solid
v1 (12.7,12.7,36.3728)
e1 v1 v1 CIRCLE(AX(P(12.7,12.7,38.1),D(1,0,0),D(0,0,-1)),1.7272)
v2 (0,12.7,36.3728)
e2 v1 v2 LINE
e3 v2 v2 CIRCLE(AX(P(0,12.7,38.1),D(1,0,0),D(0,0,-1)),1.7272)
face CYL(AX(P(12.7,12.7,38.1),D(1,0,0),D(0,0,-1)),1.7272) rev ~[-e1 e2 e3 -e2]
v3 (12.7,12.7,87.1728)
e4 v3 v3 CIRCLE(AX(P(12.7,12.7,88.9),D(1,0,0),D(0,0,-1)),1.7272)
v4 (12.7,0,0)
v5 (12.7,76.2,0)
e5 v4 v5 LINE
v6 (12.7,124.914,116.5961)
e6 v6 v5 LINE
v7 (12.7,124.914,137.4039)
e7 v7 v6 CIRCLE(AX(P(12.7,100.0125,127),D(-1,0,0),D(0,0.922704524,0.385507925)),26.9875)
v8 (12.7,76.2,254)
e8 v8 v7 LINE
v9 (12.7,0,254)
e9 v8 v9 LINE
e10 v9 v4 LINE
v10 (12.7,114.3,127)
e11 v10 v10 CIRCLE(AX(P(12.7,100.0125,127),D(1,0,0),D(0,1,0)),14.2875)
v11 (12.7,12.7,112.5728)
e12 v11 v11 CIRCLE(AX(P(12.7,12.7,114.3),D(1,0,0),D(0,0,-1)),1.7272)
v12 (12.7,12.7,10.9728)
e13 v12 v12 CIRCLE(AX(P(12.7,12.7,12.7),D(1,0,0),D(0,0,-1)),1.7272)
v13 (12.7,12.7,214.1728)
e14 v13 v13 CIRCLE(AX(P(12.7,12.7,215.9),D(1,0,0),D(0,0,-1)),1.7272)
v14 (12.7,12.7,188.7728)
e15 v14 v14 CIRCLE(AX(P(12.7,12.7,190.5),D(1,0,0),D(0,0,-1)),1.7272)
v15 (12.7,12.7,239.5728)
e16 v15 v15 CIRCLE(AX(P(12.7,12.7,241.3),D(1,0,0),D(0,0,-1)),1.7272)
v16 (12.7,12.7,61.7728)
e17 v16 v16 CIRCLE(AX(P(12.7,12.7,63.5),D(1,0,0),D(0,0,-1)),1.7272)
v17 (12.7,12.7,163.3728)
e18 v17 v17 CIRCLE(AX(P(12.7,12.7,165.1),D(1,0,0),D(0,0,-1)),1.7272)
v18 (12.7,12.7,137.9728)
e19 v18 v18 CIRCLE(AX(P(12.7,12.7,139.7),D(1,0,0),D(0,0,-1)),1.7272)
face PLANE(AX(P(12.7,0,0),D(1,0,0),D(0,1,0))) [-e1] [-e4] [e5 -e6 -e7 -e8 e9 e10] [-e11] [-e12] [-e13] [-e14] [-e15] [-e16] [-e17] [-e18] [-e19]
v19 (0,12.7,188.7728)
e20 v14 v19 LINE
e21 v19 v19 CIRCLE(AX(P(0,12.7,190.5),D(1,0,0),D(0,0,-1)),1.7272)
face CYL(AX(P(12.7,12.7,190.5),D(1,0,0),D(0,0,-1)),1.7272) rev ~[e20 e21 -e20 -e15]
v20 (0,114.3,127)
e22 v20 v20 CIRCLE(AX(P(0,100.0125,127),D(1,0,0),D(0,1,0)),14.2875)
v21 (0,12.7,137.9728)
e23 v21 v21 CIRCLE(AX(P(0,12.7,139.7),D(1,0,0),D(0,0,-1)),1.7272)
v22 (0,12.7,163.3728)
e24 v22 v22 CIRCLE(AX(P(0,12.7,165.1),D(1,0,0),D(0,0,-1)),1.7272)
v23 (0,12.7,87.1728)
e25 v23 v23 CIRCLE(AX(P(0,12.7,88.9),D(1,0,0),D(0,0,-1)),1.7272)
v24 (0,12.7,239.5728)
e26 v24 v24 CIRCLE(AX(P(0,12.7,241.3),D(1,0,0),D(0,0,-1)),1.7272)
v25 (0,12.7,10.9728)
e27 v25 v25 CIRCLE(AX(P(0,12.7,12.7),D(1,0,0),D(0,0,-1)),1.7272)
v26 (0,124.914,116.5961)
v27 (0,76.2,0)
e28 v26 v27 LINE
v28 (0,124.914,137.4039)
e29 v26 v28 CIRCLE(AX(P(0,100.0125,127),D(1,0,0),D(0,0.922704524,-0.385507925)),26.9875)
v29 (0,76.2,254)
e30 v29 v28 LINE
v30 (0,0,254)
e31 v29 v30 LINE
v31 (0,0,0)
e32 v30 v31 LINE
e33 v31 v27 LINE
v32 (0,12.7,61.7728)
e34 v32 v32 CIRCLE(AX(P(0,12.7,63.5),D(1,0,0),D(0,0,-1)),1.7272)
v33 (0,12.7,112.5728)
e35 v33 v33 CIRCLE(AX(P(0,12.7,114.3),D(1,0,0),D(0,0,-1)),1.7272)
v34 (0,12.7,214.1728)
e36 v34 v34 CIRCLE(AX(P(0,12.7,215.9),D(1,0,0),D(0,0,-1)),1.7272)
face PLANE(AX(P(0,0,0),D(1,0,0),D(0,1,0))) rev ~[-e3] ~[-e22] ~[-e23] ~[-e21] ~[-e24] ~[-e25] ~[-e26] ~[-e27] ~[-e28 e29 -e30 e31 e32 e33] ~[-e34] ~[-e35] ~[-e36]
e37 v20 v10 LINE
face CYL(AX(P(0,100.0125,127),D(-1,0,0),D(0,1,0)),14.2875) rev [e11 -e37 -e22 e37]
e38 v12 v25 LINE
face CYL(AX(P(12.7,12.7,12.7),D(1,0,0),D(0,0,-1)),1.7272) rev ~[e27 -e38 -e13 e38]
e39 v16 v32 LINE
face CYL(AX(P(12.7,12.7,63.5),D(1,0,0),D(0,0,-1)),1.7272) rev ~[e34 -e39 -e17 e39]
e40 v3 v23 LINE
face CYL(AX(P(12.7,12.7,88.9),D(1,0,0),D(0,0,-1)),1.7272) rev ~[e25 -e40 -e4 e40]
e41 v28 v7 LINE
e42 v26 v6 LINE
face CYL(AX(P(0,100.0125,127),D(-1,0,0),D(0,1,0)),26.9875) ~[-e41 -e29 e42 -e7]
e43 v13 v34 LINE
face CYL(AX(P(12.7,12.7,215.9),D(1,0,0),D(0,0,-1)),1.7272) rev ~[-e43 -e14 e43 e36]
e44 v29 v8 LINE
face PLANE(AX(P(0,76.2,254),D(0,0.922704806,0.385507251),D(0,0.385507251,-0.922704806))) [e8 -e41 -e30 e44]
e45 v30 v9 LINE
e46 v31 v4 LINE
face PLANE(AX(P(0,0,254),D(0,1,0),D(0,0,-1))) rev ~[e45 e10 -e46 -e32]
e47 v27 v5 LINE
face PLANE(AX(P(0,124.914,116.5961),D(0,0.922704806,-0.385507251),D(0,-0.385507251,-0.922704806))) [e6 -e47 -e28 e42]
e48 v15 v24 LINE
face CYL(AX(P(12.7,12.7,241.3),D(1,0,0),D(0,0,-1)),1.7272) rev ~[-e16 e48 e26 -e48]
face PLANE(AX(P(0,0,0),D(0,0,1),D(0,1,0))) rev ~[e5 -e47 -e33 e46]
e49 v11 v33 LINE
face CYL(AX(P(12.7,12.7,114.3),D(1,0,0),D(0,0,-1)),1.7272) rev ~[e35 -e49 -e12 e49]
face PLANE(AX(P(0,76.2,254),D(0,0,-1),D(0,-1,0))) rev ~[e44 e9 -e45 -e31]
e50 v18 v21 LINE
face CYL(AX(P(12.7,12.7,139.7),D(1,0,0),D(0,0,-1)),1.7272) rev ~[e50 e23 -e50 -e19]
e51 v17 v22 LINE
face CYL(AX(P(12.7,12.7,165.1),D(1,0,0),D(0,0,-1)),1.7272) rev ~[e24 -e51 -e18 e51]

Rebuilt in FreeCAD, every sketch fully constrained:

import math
import FreeCAD as App
import Part
import Sketcher
from FreeCAD import Vector
Q = App.Units.Quantity

doc = App.newDocument("Part")
body = doc.addObject("PartDesign::Body", "Body")

# Sketch on YZ plane
sketch1 = body.newObject("Sketcher::SketchObject", "Sketch")
sketch1.AttachmentSupport = (doc.getObject("YZ_Plane"), [""])
sketch1.MapMode = "FlatFace"
sketch1.addGeometry(Part.LineSegment(Vector(124.914, 137.4039, 0), Vector(76.2, 254, 0)), False)
sketch1.addGeometry(Part.LineSegment(Vector(76.2, 254, 0), Vector(0, 254, 0)), False)
sketch1.addGeometry(Part.LineSegment(Vector(0, 254, 0), Vector(0, 0, 0)), False)
sketch1.addGeometry(Part.LineSegment(Vector(0, 0, 0), Vector(76.2, 0, 0)), False)
sketch1.addGeometry(Part.LineSegment(Vector(76.2, 0, 0), Vector(124.914, 116.5961, 0)), False)
sketch1.addGeometry(Part.ArcOfCircle(Part.Circle(Vector(100.0125, 127, 0), Vector(0, 0, 1), 26.9875), math.radians(-22.675277), math.radians(22.675277)), False)
sketch1.addGeometry(Part.Circle(Vector(100.0125, 127, 0), Vector(0, 0, 1), 14.2875), False)
sketch1.addConstraint(Sketcher.Constraint("Coincident", 0, 2, 1, 1))
sketch1.addConstraint(Sketcher.Constraint("Coincident", 1, 2, 2, 1))
sketch1.addConstraint(Sketcher.Constraint("Coincident", 2, 2, 3, 1))
sketch1.addConstraint(Sketcher.Constraint("Coincident", 3, 2, 4, 1))
sketch1.addConstraint(Sketcher.Constraint("Tangent", 4, 2, 5, 1))
sketch1.addConstraint(Sketcher.Constraint("Tangent", 5, 2, 0, 1))
sketch1.addConstraint(Sketcher.Constraint("Horizontal", 1))
sketch1.addConstraint(Sketcher.Constraint("Vertical", 2))
sketch1.addConstraint(Sketcher.Constraint("Horizontal", 3))
sketch1.addConstraint(Sketcher.Constraint("Coincident", 2, 2, -1, 1))
sketch1.addConstraint(Sketcher.Constraint("Coincident", 6, 3, 5, 3))
sketch1.addConstraint(Sketcher.Constraint("Vertical", 0, 2, 3, 2))
sketch1.addConstraint(Sketcher.Constraint("Vertical", 4, 2, 5, 2))
sketch1.addConstraint(Sketcher.Constraint("DistanceX", 1, 2, 1, 1, Q("3 in")))
sketch1.addConstraint(Sketcher.Constraint("DistanceY", 2, 2, 2, 1, Q("10 in")))
sketch1.addConstraint(Sketcher.Constraint("Diameter", 6, Q("1.125 in")))
sketch1.addConstraint(Sketcher.Constraint("Radius", 5, Q("1.0625 in")))
sketch1.addConstraint(Sketcher.Constraint("DistanceX", -1, 1, 5, 3, Q("3.9375 in")))
pad1 = body.newObject("PartDesign::Pad", "Pad")
pad1.Profile = sketch1
pad1.Length = Q("0.5 in")

# Sketch on YZ plane
sketch2 = body.newObject("Sketcher::SketchObject", "Sketch001")
sketch2.AttachmentSupport = (doc.getObject("YZ_Plane"), [""])
sketch2.MapMode = "FlatFace"
sketch2.AttachmentOffset = App.Placement(Vector(0, 0, 0.5 * 25.4), App.Rotation())
sketch2.addGeometry(Part.Circle(Vector(12.7, 241.3, 0), Vector(0, 0, 1), 1.7272), False)
sketch2.addConstraint(Sketcher.Constraint("Diameter", 0, Q("0.136 in")))
sketch2.addConstraint(Sketcher.Constraint("DistanceX", -1, 1, 0, 3, Q("0.5 in")))
sketch2.addConstraint(Sketcher.Constraint("DistanceY", -1, 1, 0, 3, Q("9.5 in")))
pocket1 = body.newObject("PartDesign::Pocket", "Pocket")
pocket1.Profile = sketch2
pocket1.Type = "ThroughAll"
doc.recompute()

linearpattern = body.newObject("PartDesign::LinearPattern", "LinearPattern")
linearpattern.Originals = [pocket1]
linearpattern.Direction = (doc.getObject("Z_Axis"), [""])
linearpattern.Mode = "offset"
linearpattern.Offset = Q("1 in")
linearpattern.Occurrences = 10
linearpattern.Reversed = True
body.Tip = linearpattern

doc.recompute()
